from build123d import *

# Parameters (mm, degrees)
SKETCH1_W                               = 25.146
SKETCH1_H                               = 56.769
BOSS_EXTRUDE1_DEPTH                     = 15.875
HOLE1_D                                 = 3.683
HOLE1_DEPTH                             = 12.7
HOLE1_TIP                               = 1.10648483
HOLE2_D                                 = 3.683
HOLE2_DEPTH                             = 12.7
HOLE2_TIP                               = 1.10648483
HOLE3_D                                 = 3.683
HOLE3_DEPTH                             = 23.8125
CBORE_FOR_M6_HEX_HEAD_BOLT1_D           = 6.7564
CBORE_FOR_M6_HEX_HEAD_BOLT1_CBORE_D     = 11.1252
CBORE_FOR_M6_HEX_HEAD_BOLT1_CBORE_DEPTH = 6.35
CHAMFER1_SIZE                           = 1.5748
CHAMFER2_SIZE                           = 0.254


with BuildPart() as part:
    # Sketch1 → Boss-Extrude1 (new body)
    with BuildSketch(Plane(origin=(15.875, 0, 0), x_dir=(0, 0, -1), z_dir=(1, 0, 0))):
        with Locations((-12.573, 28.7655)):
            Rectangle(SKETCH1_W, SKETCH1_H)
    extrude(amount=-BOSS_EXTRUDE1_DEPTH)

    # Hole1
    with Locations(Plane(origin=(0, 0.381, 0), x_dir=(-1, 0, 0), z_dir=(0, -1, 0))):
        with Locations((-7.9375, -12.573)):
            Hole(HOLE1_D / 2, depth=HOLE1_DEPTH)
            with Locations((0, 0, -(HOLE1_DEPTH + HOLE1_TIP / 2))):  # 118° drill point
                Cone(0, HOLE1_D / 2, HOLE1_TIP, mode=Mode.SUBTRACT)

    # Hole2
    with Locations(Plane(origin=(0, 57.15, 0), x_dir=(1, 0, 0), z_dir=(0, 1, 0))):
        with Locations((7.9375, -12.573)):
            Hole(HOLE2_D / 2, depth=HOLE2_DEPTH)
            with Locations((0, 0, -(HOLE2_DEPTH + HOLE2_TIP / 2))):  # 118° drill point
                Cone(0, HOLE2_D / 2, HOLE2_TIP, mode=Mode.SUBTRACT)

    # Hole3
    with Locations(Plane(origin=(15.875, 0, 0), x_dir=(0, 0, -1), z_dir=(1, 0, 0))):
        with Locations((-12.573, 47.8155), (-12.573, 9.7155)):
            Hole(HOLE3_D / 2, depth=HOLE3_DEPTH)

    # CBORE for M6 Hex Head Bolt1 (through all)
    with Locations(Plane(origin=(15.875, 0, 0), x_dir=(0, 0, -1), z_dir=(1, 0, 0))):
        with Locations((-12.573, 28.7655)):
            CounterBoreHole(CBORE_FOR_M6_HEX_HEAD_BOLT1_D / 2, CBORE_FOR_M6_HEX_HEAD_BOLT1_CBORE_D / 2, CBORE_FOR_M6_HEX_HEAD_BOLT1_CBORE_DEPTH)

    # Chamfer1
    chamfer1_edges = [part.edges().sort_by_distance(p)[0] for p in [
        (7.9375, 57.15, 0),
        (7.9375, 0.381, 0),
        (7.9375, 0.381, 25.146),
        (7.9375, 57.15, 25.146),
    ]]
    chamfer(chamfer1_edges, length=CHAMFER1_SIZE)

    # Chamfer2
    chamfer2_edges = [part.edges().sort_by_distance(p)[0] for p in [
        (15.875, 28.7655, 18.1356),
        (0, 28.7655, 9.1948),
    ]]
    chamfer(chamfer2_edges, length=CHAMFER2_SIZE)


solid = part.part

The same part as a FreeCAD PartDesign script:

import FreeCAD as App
import Part
import Sketcher

V = App.Vector
Q = App.Units.Quantity


def edges_at(feature, points):
    """Names of the edges that pass closest to the given points."""
    edges = feature.Shape.Edges
    near = lambda p: min(range(len(edges)), key=lambda i: edges[i].distToShape(Part.Vertex(*p))[0])
    return sorted({f"Edge{near(p) + 1}" for p in points})

doc = App.newDocument("Part")
body = doc.addObject("PartDesign::Body", "Body")

# Sketch on YZ plane
sketch1 = body.newObject("Sketcher::SketchObject", "Sketch")
sketch1.AttachmentSupport = (doc.getObject("YZ_Plane"), [""])
sketch1.MapMode = "FlatFace"
sketch1.AttachmentOffset = App.Placement(V(0, 0, 0.625 * 25.4), App.Rotation())
sketch1.addGeometry([
    Part.LineSegment(V(57, 25, 0), V(0, 25, 0)),
    Part.LineSegment(V(0, 25, 0), V(0, 0, 0)),
    Part.LineSegment(V(0, 0, 0), V(57, 0, 0)),
    Part.LineSegment(V(57, 0, 0), V(57, 25, 0)),
], False)
sketch1.addConstraint([
    Sketcher.Constraint("Coincident", 0, 2, 1, 1),
    Sketcher.Constraint("Coincident", 1, 2, 2, 1),
    Sketcher.Constraint("Coincident", 2, 2, 3, 1),
    Sketcher.Constraint("Coincident", 3, 2, 0, 1),
    Sketcher.Constraint("Horizontal", 0),
    Sketcher.Constraint("Vertical", 1),
    Sketcher.Constraint("Horizontal", 2),
    Sketcher.Constraint("Vertical", 3),
    Sketcher.Constraint("PointOnObject", 1, 2, -1),
    Sketcher.Constraint("DistanceY", 1, 2, 1, 1, Q("0.99 in")),
    Sketcher.Constraint("DistanceX", 0, 2, 0, 1, Q("2.235 in")),
    Sketcher.Constraint("DistanceX", -1, 1, 2, 2, Q("2.25 in")),
])
pad1 = body.newObject("PartDesign::Pad", "Pad")
pad1.Profile = sketch1
pad1.Length = Q("0.625 in")
pad1.Reversed = True

# Sketch on XZ plane
sketch2 = body.newObject("Sketcher::SketchObject", "Sketch001")
sketch2.AttachmentSupport = (doc.getObject("XZ_Plane"), [""])
sketch2.MapMode = "FlatFace"
sketch2.AttachmentOffset = App.Placement(V(0, 0, -0.015 * 25.4), App.Rotation())
sketch2.addGeometry(Part.Circle(V(7.9, 12.6, 0), V(0, 0, 1), 1.8), False)
sketch2.addConstraint([
    Sketcher.Constraint("Diameter", 0, Q("0.145 in")),
    Sketcher.Constraint("DistanceX", -1, 1, 0, 3, Q("0.3125 in")),
    Sketcher.Constraint("DistanceY", -1, 1, 0, 3, Q("0.495 in")),
])
doc.recompute()
hole = body.newObject("PartDesign::Hole", "Hole")
hole.Profile = sketch2
hole.ThreadType = "None"
hole.Diameter = Q("0.145 in")
hole.DepthType = "Dimension"
hole.Depth = Q("0.5 in")
hole.DrillPoint = "Angled"
hole.DrillPointAngle = 118

# Sketch on XZ plane
sketch3 = body.newObject("Sketcher::SketchObject", "Sketch002")
sketch3.AttachmentSupport = (doc.getObject("XZ_Plane"), [""])
sketch3.MapMode = "FlatFace"
sketch3.AttachmentOffset = App.Placement(V(0, 0, -2.25 * 25.4), App.Rotation())
sketch3.addGeometry(Part.Circle(V(7.9, 12.6, 0), V(0, 0, 1), 1.8), False)
sketch3.addConstraint([
    Sketcher.Constraint("Diameter", 0, Q("0.145 in")),
    Sketcher.Constraint("DistanceX", -1, 1, 0, 3, Q("0.3125 in")),
    Sketcher.Constraint("DistanceY", -1, 1, 0, 3, Q("0.495 in")),
])
doc.recompute()
hole2 = body.newObject("PartDesign::Hole", "Hole001")
hole2.Profile = sketch3
hole2.ThreadType = "None"
hole2.Diameter = Q("0.145 in")
hole2.DepthType = "Dimension"
hole2.Depth = Q("0.5 in")
hole2.DrillPoint = "Angled"
hole2.DrillPointAngle = 118
hole2.Reversed = True

# Sketch on YZ plane
sketch4 = body.newObject("Sketcher::SketchObject", "Sketch003")
sketch4.AttachmentSupport = (doc.getObject("YZ_Plane"), [""])
sketch4.MapMode = "FlatFace"
sketch4.AttachmentOffset = App.Placement(V(0, 0, 0.625 * 25.4), App.Rotation())
sketch4.addGeometry([
    Part.Circle(V(47.8, 12.6, 0), V(0, 0, 1), 1.8),
    Part.Circle(V(9.7, 12.6, 0), V(0, 0, 1), 1.8),
], False)
sketch4.addConstraint([
    Sketcher.Constraint("Equal", 0, 1),
    Sketcher.Constraint("Horizontal", 0, 3, 1, 3),
    Sketcher.Constraint("Diameter", 0, Q("0.145 in")),
    Sketcher.Constraint("DistanceX", 1, 3, 0, 3, Q("1.5 in")),
    Sketcher.Constraint("DistanceY", -1, 1, 0, 3, Q("0.495 in")),
    Sketcher.Constraint("DistanceX", -1, 1, 0, 3, Q("1.8825 in")),
])
doc.recompute()
hole3 = body.newObject("PartDesign::Hole", "Hole002")
hole3.Profile = sketch4
hole3.ThreadType = "None"
hole3.Diameter = Q("0.145 in")
hole3.DepthType = "Dimension"
hole3.Depth = Q("0.9375 in")
hole3.DrillPoint = "Flat"

# Sketch on YZ plane
sketch5 = body.newObject("Sketcher::SketchObject", "Sketch004")
sketch5.AttachmentSupport = (doc.getObject("YZ_Plane"), [""])
sketch5.MapMode = "FlatFace"
sketch5.AttachmentOffset = App.Placement(V(0, 0, 0.625 * 25.4), App.Rotation())
sketch5.addGeometry(Part.Circle(V(28.8, 12.6, 0), V(0, 0, 1), 3.4), False)
sketch5.addConstraint([
    Sketcher.Constraint("Diameter", 0, Q("0.266 in")),
    Sketcher.Constraint("DistanceY", -1, 1, 0, 3, Q("0.495 in")),
    Sketcher.Constraint("DistanceX", -1, 1, 0, 3, Q("1.1325 in")),
])
doc.recompute()
hole4 = body.newObject("PartDesign::Hole", "Hole003")
hole4.Profile = sketch5
hole4.ThreadType = "None"
hole4.Diameter = Q("0.266 in")
hole4.DepthType = "ThroughAll"
hole4.HoleCutType = "Counterbore"
hole4.HoleCutDiameter = Q("0.438 in")
hole4.HoleCutDepth = Q("0.25 in")
doc.recompute()

chamfer = body.newObject("PartDesign::Chamfer", "Chamfer")
chamfer.Base = (hole4, edges_at(hole4, [
    (7.938, 57.15, 0),
    (7.938, 0.381, 0),
    (7.938, 0.381, 25.146),
    (7.938, 57.15, 25.146),
]))
chamfer.Size = Q("0.062 in")
doc.recompute()

chamfer2 = body.newObject("PartDesign::Chamfer", "Chamfer001")
chamfer2.Base = (chamfer, edges_at(chamfer, [(15.875, 28.765, 18.136), (0, 28.765, 9.195)]))
chamfer2.Size = Q("0.01 in")

doc.recompute()
